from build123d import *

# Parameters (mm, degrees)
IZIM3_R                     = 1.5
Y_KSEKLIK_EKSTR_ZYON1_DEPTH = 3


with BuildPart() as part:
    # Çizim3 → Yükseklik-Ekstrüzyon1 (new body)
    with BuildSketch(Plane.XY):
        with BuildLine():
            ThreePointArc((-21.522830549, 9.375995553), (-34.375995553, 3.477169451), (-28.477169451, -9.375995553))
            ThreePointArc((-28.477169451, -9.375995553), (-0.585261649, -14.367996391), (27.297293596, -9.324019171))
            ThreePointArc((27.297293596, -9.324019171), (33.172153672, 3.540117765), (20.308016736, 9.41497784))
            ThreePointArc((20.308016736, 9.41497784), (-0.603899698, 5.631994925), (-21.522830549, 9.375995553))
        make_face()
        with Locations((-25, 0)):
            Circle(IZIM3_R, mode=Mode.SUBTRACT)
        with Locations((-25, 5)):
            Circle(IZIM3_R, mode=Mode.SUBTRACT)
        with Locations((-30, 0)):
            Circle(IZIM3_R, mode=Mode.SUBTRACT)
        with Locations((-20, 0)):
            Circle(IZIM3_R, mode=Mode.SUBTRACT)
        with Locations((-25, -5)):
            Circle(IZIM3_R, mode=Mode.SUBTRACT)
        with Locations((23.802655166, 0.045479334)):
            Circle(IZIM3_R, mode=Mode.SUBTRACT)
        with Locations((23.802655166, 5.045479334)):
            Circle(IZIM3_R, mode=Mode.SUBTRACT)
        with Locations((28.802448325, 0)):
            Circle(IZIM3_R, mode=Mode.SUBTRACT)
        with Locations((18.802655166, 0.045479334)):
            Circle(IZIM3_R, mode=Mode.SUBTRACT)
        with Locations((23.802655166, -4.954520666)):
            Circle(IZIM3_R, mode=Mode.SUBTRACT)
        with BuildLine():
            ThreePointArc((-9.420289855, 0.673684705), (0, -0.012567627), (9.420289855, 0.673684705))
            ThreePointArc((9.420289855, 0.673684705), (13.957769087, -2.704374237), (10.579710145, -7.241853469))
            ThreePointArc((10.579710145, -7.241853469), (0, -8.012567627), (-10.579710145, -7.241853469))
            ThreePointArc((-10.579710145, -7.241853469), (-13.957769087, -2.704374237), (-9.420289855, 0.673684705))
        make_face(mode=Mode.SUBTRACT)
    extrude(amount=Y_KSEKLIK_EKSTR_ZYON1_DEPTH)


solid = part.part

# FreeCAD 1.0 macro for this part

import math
import FreeCAD as App
import Part
import Sketcher

doc = App.newDocument("Part")
params = doc.addObject("Spreadsheet::Sheet", "Params")
for row, (alias, value) in enumerate([
    ("sketch1_diameter", "3 mm"),
    ("sketch1_radius", "10 mm"),
    ("sketch1_radius2", "80 mm"),
    ("sketch1_radius3", "4 mm"),
    ("sketch1_radius4", "65 mm"),
    ("pad1_length", "3 mm"),
], start=1):
    params.set(f"A{row}", alias)
    params.set(f"B{row}", "=" + value)
    params.setAlias(f"B{row}", alias)

body = doc.addObject("PartDesign::Body", "Body")

# Sketch on XY plane
sketch1 = doc.addObject("Sketcher::SketchObject", "Sketch")
body.addObject(sketch1)
sketch1.AttachmentSupport = (doc.XY_Plane, [""])
sketch1.MapMode = "FlatFace"
sketch1.addGeometry([
    Part.ArcOfCircle(Part.Circle(App.Vector(-25, 0, 0), App.Vector(0, 0, 1), 10), math.radians(69.652263), math.radians(249.652263)),  # 0
    Part.ArcOfCircle(Part.Circle(App.Vector(-0.659814, 65.631969, 0), App.Vector(0, 0, 1), 80), math.radians(-110.347737), math.radians(-69.545475)),  # 1
    Part.ArcOfCircle(Part.Circle(App.Vector(23.802655, 0.045479, 0), App.Vector(0, 0, 1), 10), math.radians(-69.545475), math.radians(110.454525)),  # 2
    Part.ArcOfCircle(Part.Circle(App.Vector(-0.659814, 65.631969, 0), App.Vector(0, 0, 1), 60), math.radians(-110.347737), math.radians(-69.545475)),  # 3
    Part.Circle(App.Vector(-25, -5, 0), App.Vector(0, 0, 1), 1.5),  # 4
    Part.Circle(App.Vector(23.802655, -4.954521, 0), App.Vector(0, 0, 1), 1.5),  # 5
    Part.ArcOfCircle(Part.Circle(App.Vector(-10, -3.284084, 0), App.Vector(0, 0, 1), 4), math.radians(81.666917), math.radians(261.666917)),  # 6
    Part.ArcOfCircle(Part.Circle(App.Vector(0, 64.987432, 0), App.Vector(0, 0, 1), 65), math.radians(-98.333083), math.radians(-81.666917)),  # 7
    Part.ArcOfCircle(Part.Circle(App.Vector(10, -3.284084, 0), App.Vector(0, 0, 1), 4), math.radians(-81.666917), math.radians(98.333083)),  # 8
    Part.ArcOfCircle(Part.Circle(App.Vector(0, 64.987432, 0), App.Vector(0, 0, 1), 73), math.radians(-98.333083), math.radians(-81.666917)),  # 9
    Part.Circle(App.Vector(-30, 0, 0), App.Vector(0, 0, 1), 1.5),  # 10
    Part.Circle(App.Vector(-25, 0, 0), App.Vector(0, 0, 1), 1.5),  # 11
    Part.Circle(App.Vector(-20, 0, 0), App.Vector(0, 0, 1), 1.5),  # 12
    Part.Circle(App.Vector(-25, 5, 0), App.Vector(0, 0, 1), 1.5),  # 13
    Part.Circle(App.Vector(18.802655, 0.045479, 0), App.Vector(0, 0, 1), 1.5),  # 14
    Part.Circle(App.Vector(23.802655, 0.045479, 0), App.Vector(0, 0, 1), 1.5),  # 15
    Part.Circle(App.Vector(28.802448, 0, 0), App.Vector(0, 0, 1), 1.5),  # 16
    Part.Circle(App.Vector(23.802655, 5.045479, 0), App.Vector(0, 0, 1), 1.5),  # 17
], False)
sketch1.addConstraint([
    Sketcher.Constraint("Tangent", 0, 2, 1, 1),
    Sketcher.Constraint("Tangent", 1, 2, 2, 1),
    Sketcher.Constraint("Tangent", 2, 2, 3, 2),
    Sketcher.Constraint("Tangent", 3, 1, 0, 1),
    Sketcher.Constraint("Tangent", 6, 1, 7, 1),
    Sketcher.Constraint("Tangent", 7, 2, 8, 2),
    Sketcher.Constraint("Tangent", 8, 1, 9, 2),
    Sketcher.Constraint("Tangent", 9, 1, 6, 2),
    Sketcher.Constraint("Coincident", 3, 3, 1, 3),
    Sketcher.Constraint("Coincident", 9, 3, 7, 3),
    Sketcher.Constraint("Coincident", 11, 3, 0, 3),
    Sketcher.Constraint("Coincident", 15, 3, 2, 3),
    Sketcher.Constraint("Equal", 4, 5),
    Sketcher.Constraint("Equal", 5, 10),
    Sketcher.Constraint("Equal", 10, 11),
    Sketcher.Constraint("Equal", 11, 12),
    Sketcher.Constraint("Equal", 12, 13),
    Sketcher.Constraint("Equal", 13, 14),
    Sketcher.Constraint("Equal", 14, 15),
    Sketcher.Constraint("Equal", 15, 16),
    Sketcher.Constraint("Equal", 16, 17),
    Sketcher.Constraint("Symmetric", 6, 3, 8, 3, -2),
    Sketcher.Constraint("Symmetric", 4, 3, 13, 3, -1),
    Sketcher.Constraint("PointOnObject", 0, 3, -1),
    Sketcher.Constraint("PointOnObject", 10, 3, -1),
    Sketcher.Constraint("PointOnObject", 12, 3, -1),
    Sketcher.Constraint("PointOnObject", 16, 3, -1),
    Sketcher.Constraint("Horizontal", 2, 3, 14, 3),
    Sketcher.Constraint("Vertical", 0, 3, 4, 3),
    Sketcher.Constraint("Vertical", 2, 3, 5, 3),
    Sketcher.Constraint("Vertical", 15, 3, 17, 3),
    Sketcher.Constraint("Diameter", 4, 3.0),
    Sketcher.Constraint("Radius", 0, 10.0),
    Sketcher.Constraint("Radius", 1, 80.0),
    Sketcher.Constraint("Radius", 6, 4.0),
    Sketcher.Constraint("Radius", 7, 65.0),
    Sketcher.Constraint("DistanceX", 0, 3, -1, 1, 25.0),
    Sketcher.Constraint("DistanceY", 4, 3, -1, 1, 5.0),
    Sketcher.Constraint("DistanceX", 6, 3, -1, 1, 10.0),
    Sketcher.Constraint("DistanceX", 10, 3, -1, 1, 30.0),
    Sketcher.Constraint("DistanceX", 12, 3, -1, 1, 20.0),
    Sketcher.Constraint("DistanceY", 5, 3, 2, 3, 5.0),
    Sketcher.Constraint("DistanceX", 14, 3, 2, 3, 5.0),
    Sketcher.Constraint("DistanceY", 2, 3, 17, 3, 5.0),
    Sketcher.Constraint("DistanceY", 17, 3, 2, 2, 4.369499),
    Sketcher.Constraint("DistanceY", -1, 1, 1, 3, 65.631969),
    Sketcher.Constraint("DistanceX", -1, 1, 16, 3, 28.802448),
    Sketcher.Constraint("DistanceY", 6, 1, 3, 1, 8.702311),
])
sketch1.setExpression("Constraints[31]", "Params.sketch1_diameter")
sketch1.setExpression("Constraints[32]", "Params.sketch1_radius")
sketch1.setExpression("Constraints[33]", "Params.sketch1_radius2")
sketch1.setExpression("Constraints[34]", "Params.sketch1_radius3")
sketch1.setExpression("Constraints[35]", "Params.sketch1_radius4")
pad1 = doc.addObject("PartDesign::Pad", "Pad")
body.addObject(pad1)
pad1.Profile = sketch1
pad1.setExpression("Length", "Params.pad1_length")

doc.recompute()
